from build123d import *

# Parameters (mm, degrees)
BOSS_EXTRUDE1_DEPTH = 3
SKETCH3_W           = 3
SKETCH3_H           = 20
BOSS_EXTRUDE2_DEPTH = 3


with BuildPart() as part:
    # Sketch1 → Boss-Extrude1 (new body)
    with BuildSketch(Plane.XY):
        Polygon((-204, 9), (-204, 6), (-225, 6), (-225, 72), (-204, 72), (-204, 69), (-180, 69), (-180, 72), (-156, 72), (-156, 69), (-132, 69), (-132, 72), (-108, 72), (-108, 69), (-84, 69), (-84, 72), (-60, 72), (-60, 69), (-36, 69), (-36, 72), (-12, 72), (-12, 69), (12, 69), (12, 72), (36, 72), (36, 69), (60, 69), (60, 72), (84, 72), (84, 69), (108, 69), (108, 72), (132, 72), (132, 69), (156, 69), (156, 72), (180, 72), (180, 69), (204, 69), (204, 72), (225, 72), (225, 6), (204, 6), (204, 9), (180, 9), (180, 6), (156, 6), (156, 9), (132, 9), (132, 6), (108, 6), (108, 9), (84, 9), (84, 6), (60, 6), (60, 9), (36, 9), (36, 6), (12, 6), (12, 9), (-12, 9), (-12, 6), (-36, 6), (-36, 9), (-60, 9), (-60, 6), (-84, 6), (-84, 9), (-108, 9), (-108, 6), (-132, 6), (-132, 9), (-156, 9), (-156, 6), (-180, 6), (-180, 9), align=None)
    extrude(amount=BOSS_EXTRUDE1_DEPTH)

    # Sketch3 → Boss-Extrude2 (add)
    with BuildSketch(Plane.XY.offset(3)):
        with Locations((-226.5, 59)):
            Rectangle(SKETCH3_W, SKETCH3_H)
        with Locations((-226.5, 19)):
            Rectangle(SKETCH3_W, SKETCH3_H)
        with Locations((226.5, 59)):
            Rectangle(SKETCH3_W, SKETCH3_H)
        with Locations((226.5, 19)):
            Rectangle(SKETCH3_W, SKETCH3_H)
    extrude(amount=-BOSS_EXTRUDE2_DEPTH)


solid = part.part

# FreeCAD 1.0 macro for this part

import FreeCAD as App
import Part
import Sketcher
Q = App.Units.Quantity


def add_polygon(sketch, points):
    """Adds a closed chain of lines whose ends are joined by coincident constraints."""
    first, n = sketch.GeometryCount, len(points)
    for a, b in zip(points, points[1:] + points[:1]):
        sketch.addGeometry(Part.LineSegment(App.Vector(*a, 0), App.Vector(*b, 0)), False)
    for i in range(n):
        sketch.addConstraint(Sketcher.Constraint("Coincident", first + i, 2, first + (i + 1) % n, 1))

doc = App.newDocument("Part")
params = doc.addObject("Spreadsheet::Sheet", "Params")
for row, (alias, value) in enumerate([
    ("sketch1_width", "24 mm"),
    ("sketch1_width2", "21 mm"),
    ("sketch1_height", "3 mm"),
    ("sketch1_height2", "66 mm"),
    ("pad1_length", "3 mm"),
    ("sketch2_width", "3 mm"),
    ("sketch2_height", "20 mm"),
    ("pad2_length", "3 mm"),
], start=1):
    params.set(f"A{row}", alias)
    params.set(f"B{row}", "=" + value)
    params.setAlias(f"B{row}", alias)

body = doc.addObject("PartDesign::Body", "Body")

sketch1 = doc.addObject("Sketcher::SketchObject", "Sketch")
body.addObject(sketch1)
sketch1.AttachmentSupport = (doc.XY_Plane, [""])
sketch1.MapMode = "FlatFace"
add_polygon(sketch1, [(-204, 6), (-204, 9), (-180, 9), (-180, 6), (-156, 6), (-156, 9), (-132, 9), (-132, 6), (-108, 6), (-108, 9), (-84, 9), (-84, 6), (-60, 6), (-60, 9), (-36, 9), (-36, 6), (-12, 6), (-12, 9), (12, 9), (12, 6), (36, 6), (36, 9), (60, 9), (60, 6), (84, 6), (84, 9), (108, 9), (108, 6), (132, 6), (132, 9), (156, 9), (156, 6), (180, 6), (180, 9), (204, 9), (204, 6), (225, 6), (225, 72), (204, 72), (204, 69), (180, 69), (180, 72), (156, 72), (156, 69), (132, 69), (132, 72), (108, 72), (108, 69), (84, 69), (84, 72), (60, 72), (60, 69), (36, 69), (36, 72), (12, 72), (12, 69), (-12, 69), (-12, 72), (-36, 72), (-36, 69), (-60, 69), (-60, 72), (-84, 72), (-84, 69), (-108, 69), (-108, 72), (-132, 72), (-132, 69), (-156, 69), (-156, 72), (-180, 72), (-180, 69), (-204, 69), (-204, 72), (-225, 72), (-225, 6)])
sketch1.addConstraint([
    Sketcher.Constraint("Vertical", 0),
    Sketcher.Constraint("Horizontal", 1),
    Sketcher.Constraint("Vertical", 2),
    Sketcher.Constraint("Horizontal", 3),
    Sketcher.Constraint("Vertical", 4),
    Sketcher.Constraint("Horizontal", 5),
    Sketcher.Constraint("Vertical", 6),
    Sketcher.Constraint("Horizontal", 7),
    Sketcher.Constraint("Vertical", 8),
    Sketcher.Constraint("Horizontal", 9),
    Sketcher.Constraint("Vertical", 10),
    Sketcher.Constraint("Horizontal", 11),
    Sketcher.Constraint("Vertical", 12),
    Sketcher.Constraint("Horizontal", 13),
    Sketcher.Constraint("Vertical", 14),
    Sketcher.Constraint("Horizontal", 15),
    Sketcher.Constraint("Vertical", 16),
    Sketcher.Constraint("Horizontal", 17),
    Sketcher.Constraint("Vertical", 18),
    Sketcher.Constraint("Horizontal", 19),
    Sketcher.Constraint("Vertical", 20),
    Sketcher.Constraint("Horizontal", 21),
    Sketcher.Constraint("Vertical", 22),
    Sketcher.Constraint("Horizontal", 23),
    Sketcher.Constraint("Vertical", 24),
    Sketcher.Constraint("Horizontal", 25),
    Sketcher.Constraint("Vertical", 26),
    Sketcher.Constraint("Horizontal", 27),
    Sketcher.Constraint("Vertical", 28),
    Sketcher.Constraint("Horizontal", 29),
    Sketcher.Constraint("Vertical", 30),
    Sketcher.Constraint("Horizontal", 31),
    Sketcher.Constraint("Vertical", 32),
    Sketcher.Constraint("Horizontal", 33),
    Sketcher.Constraint("Vertical", 34),
    Sketcher.Constraint("Horizontal", 35),
    Sketcher.Constraint("Vertical", 36),
    Sketcher.Constraint("Horizontal", 37),
    Sketcher.Constraint("Vertical", 38),
    Sketcher.Constraint("Horizontal", 39),
    Sketcher.Constraint("Vertical", 40),
    Sketcher.Constraint("Horizontal", 41),
    Sketcher.Constraint("Vertical", 42),
    Sketcher.Constraint("Horizontal", 43),
    Sketcher.Constraint("Vertical", 44),
    Sketcher.Constraint("Horizontal", 45),
    Sketcher.Constraint("Vertical", 46),
    Sketcher.Constraint("Horizontal", 47),
    Sketcher.Constraint("Vertical", 48),
    Sketcher.Constraint("Horizontal", 49),
    Sketcher.Constraint("Vertical", 50),
    Sketcher.Constraint("Horizontal", 51),
    Sketcher.Constraint("Vertical", 52),
    Sketcher.Constraint("Horizontal", 53),
    Sketcher.Constraint("Vertical", 54),
    Sketcher.Constraint("Horizontal", 55),
    Sketcher.Constraint("Vertical", 56),
    Sketcher.Constraint("Horizontal", 57),
    Sketcher.Constraint("Vertical", 58),
    Sketcher.Constraint("Horizontal", 59),
    Sketcher.Constraint("Vertical", 60),
    Sketcher.Constraint("Horizontal", 61),
    Sketcher.Constraint("Vertical", 62),
    Sketcher.Constraint("Horizontal", 63),
    Sketcher.Constraint("Vertical", 64),
    Sketcher.Constraint("Horizontal", 65),
    Sketcher.Constraint("Vertical", 66),
    Sketcher.Constraint("Horizontal", 67),
    Sketcher.Constraint("Vertical", 68),
    Sketcher.Constraint("Horizontal", 69),
    Sketcher.Constraint("Vertical", 70),
    Sketcher.Constraint("Horizontal", 71),
    Sketcher.Constraint("Vertical", 72),
    Sketcher.Constraint("Horizontal", 73),
    Sketcher.Constraint("Vertical", 74),
    Sketcher.Constraint("Horizontal", 75),
    Sketcher.Constraint("Symmetric", 15, 2, 18, 2, -2),
    Sketcher.Constraint("Symmetric", 13, 2, 20, 2, -2),
    Sketcher.Constraint("Symmetric", 11, 2, 22, 2, -2),
    Sketcher.Constraint("Symmetric", 9, 2, 24, 2, -2),
    Sketcher.Constraint("Symmetric", 7, 2, 26, 2, -2),
    Sketcher.Constraint("Symmetric", 5, 2, 28, 2, -2),
    Sketcher.Constraint("Symmetric", 3, 2, 30, 2, -2),
    Sketcher.Constraint("Symmetric", 1, 2, 32, 2, -2),
    Sketcher.Constraint("Symmetric", 53, 2, 56, 2, -2),
    Sketcher.Constraint("Symmetric", 51, 2, 58, 2, -2),
    Sketcher.Constraint("Symmetric", 49, 2, 60, 2, -2),
    Sketcher.Constraint("Symmetric", 47, 2, 62, 2, -2),
    Sketcher.Constraint("Symmetric", 45, 2, 64, 2, -2),
    Sketcher.Constraint("Symmetric", 43, 2, 66, 2, -2),
    Sketcher.Constraint("Symmetric", 41, 2, 68, 2, -2),
    Sketcher.Constraint("Symmetric", 39, 2, 70, 2, -2),
    Sketcher.Constraint("Symmetric", 37, 2, 72, 2, -2),
    Sketcher.Constraint("Symmetric", 35, 2, 74, 2, -2),
    Sketcher.Constraint("Horizontal", 1, 2, 4, 2),
    Sketcher.Constraint("Horizontal", 3, 2, 6, 2),
    Sketcher.Constraint("Horizontal", 5, 2, 8, 2),
    Sketcher.Constraint("Horizontal", 7, 2, 10, 2),
    Sketcher.Constraint("Horizontal", 9, 2, 12, 2),
    Sketcher.Constraint("Horizontal", 11, 2, 14, 2),
    Sketcher.Constraint("Horizontal", 13, 2, 16, 2),
    Sketcher.Constraint("Horizontal", 31, 2, 34, 2),
    Sketcher.Constraint("Horizontal", 37, 2, 40, 2),
    Sketcher.Constraint("Horizontal", 39, 2, 42, 2),
    Sketcher.Constraint("Horizontal", 41, 2, 44, 2),
    Sketcher.Constraint("Horizontal", 43, 2, 46, 2),
    Sketcher.Constraint("Horizontal", 45, 2, 48, 2),
    Sketcher.Constraint("Horizontal", 47, 2, 50, 2),
    Sketcher.Constraint("Horizontal", 49, 2, 52, 2),
    Sketcher.Constraint("Horizontal", 51, 2, 54, 2),
    Sketcher.Constraint("Vertical", 34, 2, 37, 2),
    Sketcher.Constraint("Vertical", 32, 2, 39, 2),
    Sketcher.Constraint("Vertical", 30, 2, 41, 2),
    Sketcher.Constraint("Vertical", 28, 2, 43, 2),
    Sketcher.Constraint("Vertical", 26, 2, 45, 2),
    Sketcher.Constraint("Vertical", 24, 2, 47, 2),
    Sketcher.Constraint("Vertical", 22, 2, 49, 2),
    Sketcher.Constraint("Vertical", 20, 2, 51, 2),
    Sketcher.Constraint("Vertical", 18, 2, 53, 2),
    Sketcher.Constraint("Vertical", 0, 2, 71, 2),
    Sketcher.Constraint("Equal", 1, 3),
    Sketcher.Constraint("Equal", 3, 5),
    Sketcher.Constraint("Equal", 5, 7),
    Sketcher.Constraint("Equal", 7, 9),
    Sketcher.Constraint("Equal", 9, 11),
    Sketcher.Constraint("Equal", 11, 13),
    Sketcher.Constraint("Equal", 13, 15),
    Sketcher.Constraint("Equal", 15, 17),
    Sketcher.Constraint("Equal", 34, 38),
    Sketcher.Constraint("DistanceX", 1, 1, 1, 2, Q("24 mm")),
    Sketcher.Constraint("DistanceX", 35, 1, 35, 2, Q("21 mm")),
    Sketcher.Constraint("DistanceY", 0, 1, 0, 2, Q("3 mm")),
    Sketcher.Constraint("DistanceY", 36, 1, 36, 2, Q("66 mm")),
    Sketcher.Constraint("DistanceY", -1, 1, 0, 2, Q("9 mm")),
])
sketch1.setExpression("Constraints[205]", "Params.sketch1_width")
sketch1.setExpression("Constraints[206]", "Params.sketch1_width2")
sketch1.setExpression("Constraints[207]", "Params.sketch1_height")
sketch1.setExpression("Constraints[208]", "Params.sketch1_height2")
pad1 = doc.addObject("PartDesign::Pad", "Pad")
body.addObject(pad1)
pad1.Profile = sketch1
pad1.setExpression("Length", "Params.pad1_length")

sketch2 = doc.addObject("Sketcher::SketchObject", "Sketch001")
body.addObject(sketch2)
sketch2.AttachmentSupport = (doc.XY_Plane, [""])
sketch2.MapMode = "FlatFace"
sketch2.AttachmentOffset = App.Placement(App.Vector(0, 0, 3), App.Rotation())
add_polygon(sketch2, [(-228, 69), (-228, 49), (-225, 49), (-225, 69)])
add_polygon(sketch2, [(-228, 29), (-228, 9), (-225, 9), (-225, 29)])
add_polygon(sketch2, [(225, 69), (225, 49), (228, 49), (228, 69)])
add_polygon(sketch2, [(225, 29), (225, 9), (228, 9), (228, 29)])
sketch2.addConstraint([
    Sketcher.Constraint("Vertical", 0),
    Sketcher.Constraint("Horizontal", 1),
    Sketcher.Constraint("Vertical", 2),
    Sketcher.Constraint("Horizontal", 3),
    Sketcher.Constraint("Vertical", 4),
    Sketcher.Constraint("Horizontal", 5),
    Sketcher.Constraint("Vertical", 6),
    Sketcher.Constraint("Horizontal", 7),
    Sketcher.Constraint("Vertical", 8),
    Sketcher.Constraint("Horizontal", 9),
    Sketcher.Constraint("Vertical", 10),
    Sketcher.Constraint("Horizontal", 11),
    Sketcher.Constraint("Vertical", 12),
    Sketcher.Constraint("Horizontal", 13),
    Sketcher.Constraint("Vertical", 14),
    Sketcher.Constraint("Horizontal", 15),
    Sketcher.Constraint("Symmetric", 1, 2, 8, 2, -2),
    Sketcher.Constraint("Symmetric", 3, 2, 10, 2, -2),
    Sketcher.Constraint("Symmetric", 5, 2, 12, 2, -2),
    Sketcher.Constraint("Symmetric", 7, 2, 14, 2, -2),
    Sketcher.Constraint("Vertical", 3, 2, 4, 2),
    Sketcher.Constraint("Vertical", 2, 2, 5, 2),
    Sketcher.Constraint("Equal", 2, 4),
    Sketcher.Constraint("DistanceX", 1, 1, 1, 2, Q("3 mm")),
    Sketcher.Constraint("DistanceY", 0, 2, 0, 1, Q("20 mm")),
    Sketcher.Constraint("DistanceX", 0, 2, -1, 1, Q("228 mm")),
    Sketcher.Constraint("DistanceY", -1, 1, 0, 2, Q("49 mm")),
    Sketcher.Constraint("DistanceY", -1, 1, 4, 2, Q("9 mm")),
])
sketch2.setExpression("Constraints[39]", "Params.sketch2_width")
sketch2.setExpression("Constraints[40]", "Params.sketch2_height")
pad2 = doc.addObject("PartDesign::Pad", "Pad001")
body.addObject(pad2)
pad2.Profile = sketch2
pad2.setExpression("Length", "Params.pad2_length")
pad2.Reversed = True

doc.recompute()
